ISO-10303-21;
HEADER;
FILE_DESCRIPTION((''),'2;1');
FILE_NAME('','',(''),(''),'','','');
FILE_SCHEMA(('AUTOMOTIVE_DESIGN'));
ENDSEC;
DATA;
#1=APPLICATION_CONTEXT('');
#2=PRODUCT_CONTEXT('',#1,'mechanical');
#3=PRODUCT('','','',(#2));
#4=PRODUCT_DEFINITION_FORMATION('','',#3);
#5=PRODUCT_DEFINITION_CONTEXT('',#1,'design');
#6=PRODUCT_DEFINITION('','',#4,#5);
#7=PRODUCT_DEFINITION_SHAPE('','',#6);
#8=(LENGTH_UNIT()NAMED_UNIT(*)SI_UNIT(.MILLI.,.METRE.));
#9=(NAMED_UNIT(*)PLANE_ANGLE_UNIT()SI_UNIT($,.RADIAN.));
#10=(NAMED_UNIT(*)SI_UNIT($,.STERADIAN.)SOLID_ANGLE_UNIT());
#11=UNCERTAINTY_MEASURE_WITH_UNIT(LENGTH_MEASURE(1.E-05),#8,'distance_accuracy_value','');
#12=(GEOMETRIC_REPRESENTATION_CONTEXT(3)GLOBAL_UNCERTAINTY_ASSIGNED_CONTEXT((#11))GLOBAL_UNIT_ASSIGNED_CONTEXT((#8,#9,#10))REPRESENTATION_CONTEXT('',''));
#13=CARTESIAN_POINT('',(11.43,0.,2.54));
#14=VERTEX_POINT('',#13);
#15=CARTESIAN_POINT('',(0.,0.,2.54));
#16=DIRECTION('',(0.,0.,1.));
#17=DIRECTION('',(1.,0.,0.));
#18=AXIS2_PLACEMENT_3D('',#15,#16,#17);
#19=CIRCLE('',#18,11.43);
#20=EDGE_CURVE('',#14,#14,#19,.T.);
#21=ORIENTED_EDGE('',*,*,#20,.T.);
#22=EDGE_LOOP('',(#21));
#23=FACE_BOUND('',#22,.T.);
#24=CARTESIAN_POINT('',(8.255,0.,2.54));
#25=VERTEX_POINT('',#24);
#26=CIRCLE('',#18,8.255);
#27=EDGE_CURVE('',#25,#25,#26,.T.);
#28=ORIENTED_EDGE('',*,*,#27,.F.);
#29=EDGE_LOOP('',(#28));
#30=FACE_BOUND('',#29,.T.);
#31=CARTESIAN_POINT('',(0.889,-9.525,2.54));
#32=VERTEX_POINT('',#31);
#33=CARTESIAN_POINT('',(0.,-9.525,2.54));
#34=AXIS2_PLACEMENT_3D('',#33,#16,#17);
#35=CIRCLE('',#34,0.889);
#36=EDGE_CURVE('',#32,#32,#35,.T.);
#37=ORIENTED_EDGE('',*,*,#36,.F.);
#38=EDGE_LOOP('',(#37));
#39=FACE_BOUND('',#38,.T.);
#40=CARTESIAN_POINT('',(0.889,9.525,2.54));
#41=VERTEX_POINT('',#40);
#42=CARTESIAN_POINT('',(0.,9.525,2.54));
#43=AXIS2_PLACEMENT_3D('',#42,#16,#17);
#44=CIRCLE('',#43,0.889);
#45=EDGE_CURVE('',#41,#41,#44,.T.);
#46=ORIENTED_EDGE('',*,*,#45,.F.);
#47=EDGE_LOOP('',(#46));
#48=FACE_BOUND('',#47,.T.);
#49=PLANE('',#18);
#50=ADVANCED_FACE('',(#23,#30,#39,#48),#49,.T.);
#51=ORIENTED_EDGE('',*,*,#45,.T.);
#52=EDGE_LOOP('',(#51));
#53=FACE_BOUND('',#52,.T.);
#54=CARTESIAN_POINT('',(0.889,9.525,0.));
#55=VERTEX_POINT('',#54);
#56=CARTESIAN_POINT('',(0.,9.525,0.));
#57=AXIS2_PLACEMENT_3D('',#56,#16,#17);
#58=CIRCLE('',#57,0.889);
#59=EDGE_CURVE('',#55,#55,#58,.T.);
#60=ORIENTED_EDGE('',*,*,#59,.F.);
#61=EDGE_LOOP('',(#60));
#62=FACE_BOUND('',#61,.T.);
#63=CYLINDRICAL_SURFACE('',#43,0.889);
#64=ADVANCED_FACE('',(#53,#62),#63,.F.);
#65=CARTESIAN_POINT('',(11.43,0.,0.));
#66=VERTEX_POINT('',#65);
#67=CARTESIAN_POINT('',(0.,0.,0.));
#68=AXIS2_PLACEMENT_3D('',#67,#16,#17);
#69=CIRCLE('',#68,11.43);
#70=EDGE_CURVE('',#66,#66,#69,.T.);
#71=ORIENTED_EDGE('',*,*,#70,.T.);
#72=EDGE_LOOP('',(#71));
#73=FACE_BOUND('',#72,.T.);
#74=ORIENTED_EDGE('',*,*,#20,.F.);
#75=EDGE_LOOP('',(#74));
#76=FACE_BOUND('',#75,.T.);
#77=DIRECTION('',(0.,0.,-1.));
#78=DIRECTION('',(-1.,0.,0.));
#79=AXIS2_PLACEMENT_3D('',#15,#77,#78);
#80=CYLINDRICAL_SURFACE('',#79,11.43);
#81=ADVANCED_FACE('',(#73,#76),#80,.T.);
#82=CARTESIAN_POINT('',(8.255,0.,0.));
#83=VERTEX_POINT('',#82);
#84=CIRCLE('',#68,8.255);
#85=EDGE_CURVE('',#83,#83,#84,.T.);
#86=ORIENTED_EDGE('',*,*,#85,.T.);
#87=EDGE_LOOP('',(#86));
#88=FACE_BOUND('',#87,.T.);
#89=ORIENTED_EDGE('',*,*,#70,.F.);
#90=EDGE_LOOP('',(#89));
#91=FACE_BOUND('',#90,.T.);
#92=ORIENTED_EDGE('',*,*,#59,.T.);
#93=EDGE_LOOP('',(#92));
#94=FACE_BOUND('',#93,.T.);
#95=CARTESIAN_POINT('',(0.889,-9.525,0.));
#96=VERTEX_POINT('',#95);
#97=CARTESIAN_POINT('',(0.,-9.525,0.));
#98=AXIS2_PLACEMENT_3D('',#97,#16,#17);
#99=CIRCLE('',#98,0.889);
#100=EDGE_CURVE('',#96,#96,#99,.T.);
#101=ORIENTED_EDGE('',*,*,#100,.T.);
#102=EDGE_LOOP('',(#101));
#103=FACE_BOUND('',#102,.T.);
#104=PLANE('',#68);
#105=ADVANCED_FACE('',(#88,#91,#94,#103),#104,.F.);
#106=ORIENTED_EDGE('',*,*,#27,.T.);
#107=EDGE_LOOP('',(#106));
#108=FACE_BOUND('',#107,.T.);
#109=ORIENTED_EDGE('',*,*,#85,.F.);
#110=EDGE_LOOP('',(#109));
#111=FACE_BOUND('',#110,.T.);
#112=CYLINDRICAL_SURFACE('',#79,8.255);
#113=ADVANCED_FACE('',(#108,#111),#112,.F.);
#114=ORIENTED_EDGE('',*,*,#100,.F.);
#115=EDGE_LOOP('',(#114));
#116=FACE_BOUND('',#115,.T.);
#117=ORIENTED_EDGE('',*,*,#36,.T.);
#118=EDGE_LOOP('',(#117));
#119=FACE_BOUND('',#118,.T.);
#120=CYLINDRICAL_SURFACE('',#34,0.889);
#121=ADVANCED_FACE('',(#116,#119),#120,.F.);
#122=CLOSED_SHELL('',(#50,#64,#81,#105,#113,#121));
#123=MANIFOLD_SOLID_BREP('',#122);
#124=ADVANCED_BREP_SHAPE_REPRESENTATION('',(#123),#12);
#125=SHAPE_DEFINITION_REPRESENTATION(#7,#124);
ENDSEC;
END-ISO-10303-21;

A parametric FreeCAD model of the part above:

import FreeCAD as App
import Part
import Sketcher
from FreeCAD import Vector
Q = App.Units.Quantity

doc = App.newDocument("Part")
body = doc.addObject("PartDesign::Body", "Body")

# Sketch on XY plane
sketch1 = doc.addObject("Sketcher::SketchObject", "Sketch")
body.addObject(sketch1)
sketch1.AttachmentSupport = (doc.XY_Plane, [""])
sketch1.MapMode = "FlatFace"
sketch1.addGeometry([
    Part.Circle(Vector(0, 0, 0), Vector(0, 0, 1), 11.43),
    Part.Circle(Vector(0, 0, 0), Vector(0, 0, 1), 8.255),
], False)
sketch1.addConstraint([
    Sketcher.Constraint("Coincident", 0, 3, -1, 1),
    Sketcher.Constraint("Coincident", 1, 3, -1, 1),
    Sketcher.Constraint("Diameter", 0, Q("0.9 in")),
    Sketcher.Constraint("Diameter", 1, Q("0.65 in")),
])
pad1 = doc.addObject("PartDesign::Pad", "Pad")
body.addObject(pad1)
pad1.Profile = sketch1
pad1.Length = Q("0.1 in")

# Sketch on XY plane
sketch2 = doc.addObject("Sketcher::SketchObject", "Sketch001")
body.addObject(sketch2)
sketch2.AttachmentSupport = (doc.XY_Plane, [""])
sketch2.MapMode = "FlatFace"
sketch2.AttachmentOffset = App.Placement(Vector(0, 0, 0.1 * 25.4), App.Rotation())
sketch2.addGeometry(Part.Circle(Vector(0, 9.525, 0), Vector(0, 0, 1), 0.889), False)
sketch2.addConstraint([
    Sketcher.Constraint("PointOnObject", 0, 3, -2),
    Sketcher.Constraint("Diameter", 0, Q("0.07 in")),
    Sketcher.Constraint("DistanceY", -1, 1, 0, 3, Q("0.375 in")),
])
doc.recompute()
hole = doc.addObject("PartDesign::Hole", "Hole")
body.addObject(hole)
hole.Profile = sketch2
hole.ThreadType = "None"
hole.Diameter = Q("0.07 in")
hole.DepthType = "ThroughAll"
doc.recompute()

mirrored = doc.addObject("PartDesign::Mirrored", "Mirrored")
body.addObject(mirrored)
mirrored.Originals = [hole]
mirrored.MirrorPlane = (doc.XZ_Plane, [""])
body.Tip = mirrored

doc.recompute()
